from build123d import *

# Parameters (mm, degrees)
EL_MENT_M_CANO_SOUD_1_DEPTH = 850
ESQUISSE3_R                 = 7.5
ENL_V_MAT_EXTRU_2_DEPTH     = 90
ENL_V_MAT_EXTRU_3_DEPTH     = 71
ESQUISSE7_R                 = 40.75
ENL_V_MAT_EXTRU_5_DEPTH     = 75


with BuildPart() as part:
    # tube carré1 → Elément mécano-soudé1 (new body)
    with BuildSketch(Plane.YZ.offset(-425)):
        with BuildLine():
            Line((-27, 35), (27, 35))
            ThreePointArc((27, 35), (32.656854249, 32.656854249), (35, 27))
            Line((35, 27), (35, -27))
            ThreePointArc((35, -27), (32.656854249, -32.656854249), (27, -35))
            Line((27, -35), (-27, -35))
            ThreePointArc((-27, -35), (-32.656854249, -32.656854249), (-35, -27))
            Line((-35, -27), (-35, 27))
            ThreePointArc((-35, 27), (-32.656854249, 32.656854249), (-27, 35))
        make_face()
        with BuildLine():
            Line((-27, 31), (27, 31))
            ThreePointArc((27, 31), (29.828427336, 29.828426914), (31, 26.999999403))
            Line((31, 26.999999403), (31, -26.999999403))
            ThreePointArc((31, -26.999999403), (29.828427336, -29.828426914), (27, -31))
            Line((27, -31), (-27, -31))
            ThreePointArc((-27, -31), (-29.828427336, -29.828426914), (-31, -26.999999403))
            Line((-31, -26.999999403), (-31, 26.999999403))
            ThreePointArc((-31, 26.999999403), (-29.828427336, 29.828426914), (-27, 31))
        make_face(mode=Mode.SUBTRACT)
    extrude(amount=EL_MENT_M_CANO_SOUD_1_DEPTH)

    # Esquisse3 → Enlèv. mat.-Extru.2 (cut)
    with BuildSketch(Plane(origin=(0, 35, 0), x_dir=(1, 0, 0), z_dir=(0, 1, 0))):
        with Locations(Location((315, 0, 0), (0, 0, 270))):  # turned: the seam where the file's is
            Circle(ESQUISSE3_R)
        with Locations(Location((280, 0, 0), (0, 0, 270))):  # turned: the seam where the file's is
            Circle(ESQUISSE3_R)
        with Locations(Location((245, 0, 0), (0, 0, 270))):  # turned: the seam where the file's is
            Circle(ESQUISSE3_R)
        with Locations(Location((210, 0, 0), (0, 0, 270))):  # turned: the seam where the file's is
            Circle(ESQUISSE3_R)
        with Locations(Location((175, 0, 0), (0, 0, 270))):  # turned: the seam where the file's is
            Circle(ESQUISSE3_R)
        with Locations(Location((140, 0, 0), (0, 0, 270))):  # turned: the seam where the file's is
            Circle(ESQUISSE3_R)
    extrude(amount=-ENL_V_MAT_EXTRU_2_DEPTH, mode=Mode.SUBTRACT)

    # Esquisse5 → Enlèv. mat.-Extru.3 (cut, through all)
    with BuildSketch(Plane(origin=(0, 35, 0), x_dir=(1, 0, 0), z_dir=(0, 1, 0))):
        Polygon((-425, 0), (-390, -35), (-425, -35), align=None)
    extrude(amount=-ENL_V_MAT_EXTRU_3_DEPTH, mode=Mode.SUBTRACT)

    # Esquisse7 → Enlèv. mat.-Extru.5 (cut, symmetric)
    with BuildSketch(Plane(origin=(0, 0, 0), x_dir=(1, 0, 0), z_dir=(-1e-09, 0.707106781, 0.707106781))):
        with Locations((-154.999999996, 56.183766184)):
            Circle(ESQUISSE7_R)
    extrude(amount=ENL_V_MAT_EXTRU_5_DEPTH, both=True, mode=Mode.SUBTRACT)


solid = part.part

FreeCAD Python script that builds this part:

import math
import FreeCAD as App
import Part
import Sketcher
from FreeCAD import Vector
Q = App.Units.Quantity

doc = App.newDocument("Part")
params = doc.addObject("Spreadsheet::Sheet", "Params")
for row, (alias, value) in enumerate([
    ("sketch1_radius", "8 mm"),
    ("sketch1_radius2", "4 mm"),
    ("sketch1_width", "54 mm"),
    ("pad1_length", "850 mm"),
    ("sketch2_diameter", "15 mm"),
    ("pocket1_length", "90 mm"),
    ("sketch3_width", "35 mm"),
    ("sketch4_diameter", "81.5 mm"),
    ("pocket3_length", "150 mm"),
], start=1):
    params.set(f"A{row}", alias)
    params.set(f"B{row}", "=" + value)
    params.setAlias(f"B{row}", alias)

body = doc.addObject("PartDesign::Body", "Body")

sketch1 = body.newObject("Sketcher::SketchObject", "Sketch")
sketch1.AttachmentSupport = (doc.getObject("YZ_Plane"), [""])
sketch1.MapMode = "FlatFace"
sketch1.AttachmentOffset = App.Placement(Vector(0, 0, -425), App.Rotation())
sketch1.addGeometry(Part.LineSegment(Vector(27, 35, 0), Vector(-27, 35, 0)), False)
sketch1.addGeometry(Part.ArcOfCircle(Part.Circle(Vector(-27, 27, 0), Vector(0, 0, 1), 8), math.radians(90), math.radians(180)), False)
sketch1.addGeometry(Part.LineSegment(Vector(-35, 27, 0), Vector(-35, -27, 0)), False)
sketch1.addGeometry(Part.ArcOfCircle(Part.Circle(Vector(-27, -27, 0), Vector(0, 0, 1), 8), math.radians(-180), math.radians(-90)), False)
sketch1.addGeometry(Part.LineSegment(Vector(-27, -35, 0), Vector(27, -35, 0)), False)
sketch1.addGeometry(Part.ArcOfCircle(Part.Circle(Vector(27, -27, 0), Vector(0, 0, 1), 8), math.radians(-90), math.radians(0)), False)
sketch1.addGeometry(Part.LineSegment(Vector(35, -27, 0), Vector(35, 27, 0)), False)
sketch1.addGeometry(Part.ArcOfCircle(Part.Circle(Vector(27, 27, 0), Vector(0, 0, 1), 8), math.radians(0), math.radians(90)), False)
sketch1.addGeometry(Part.LineSegment(Vector(-27, 31, 0), Vector(27, 31, 0)), False)
sketch1.addGeometry(Part.ArcOfCircle(Part.Circle(Vector(27, 27, 0), Vector(0, 0, 1), 4), math.radians(-0.000009), math.radians(90)), False)
sketch1.addGeometry(Part.LineSegment(Vector(31, 26.999999, 0), Vector(31, -26.999999, 0)), False)
sketch1.addGeometry(Part.ArcOfCircle(Part.Circle(Vector(27, -27, 0), Vector(0, 0, 1), 4), math.radians(-90), math.radians(0.000009)), False)
sketch1.addGeometry(Part.LineSegment(Vector(27, -31, 0), Vector(-27, -31, 0)), False)
sketch1.addGeometry(Part.ArcOfCircle(Part.Circle(Vector(-27, -27, 0), Vector(0, 0, 1), 4), math.radians(179.999991), math.radians(270)), False)
sketch1.addGeometry(Part.LineSegment(Vector(-31, -26.999999, 0), Vector(-31, 26.999999, 0)), False)
sketch1.addGeometry(Part.ArcOfCircle(Part.Circle(Vector(-27, 27, 0), Vector(0, 0, 1), 4), math.radians(90), math.radians(180.000009)), False)
sketch1.addConstraint(Sketcher.Constraint("Tangent", 0, 2, 1, 1))
sketch1.addConstraint(Sketcher.Constraint("Tangent", 1, 2, 2, 1))
sketch1.addConstraint(Sketcher.Constraint("Tangent", 2, 2, 3, 1))
sketch1.addConstraint(Sketcher.Constraint("Tangent", 3, 2, 4, 1))
sketch1.addConstraint(Sketcher.Constraint("Tangent", 4, 2, 5, 1))
sketch1.addConstraint(Sketcher.Constraint("Tangent", 5, 2, 6, 1))
sketch1.addConstraint(Sketcher.Constraint("Tangent", 6, 2, 7, 1))
sketch1.addConstraint(Sketcher.Constraint("Tangent", 7, 2, 0, 1))
sketch1.addConstraint(Sketcher.Constraint("Tangent", 8, 2, 9, 2))
sketch1.addConstraint(Sketcher.Constraint("Tangent", 9, 1, 10, 1))
sketch1.addConstraint(Sketcher.Constraint("Tangent", 10, 2, 11, 2))
sketch1.addConstraint(Sketcher.Constraint("Tangent", 11, 1, 12, 1))
sketch1.addConstraint(Sketcher.Constraint("Tangent", 12, 2, 13, 2))
sketch1.addConstraint(Sketcher.Constraint("Tangent", 13, 1, 14, 1))
sketch1.addConstraint(Sketcher.Constraint("Tangent", 14, 2, 15, 2))
sketch1.addConstraint(Sketcher.Constraint("Tangent", 15, 1, 8, 1))
sketch1.addConstraint(Sketcher.Constraint("Horizontal", 0))
sketch1.addConstraint(Sketcher.Constraint("Vertical", 2))
sketch1.addConstraint(Sketcher.Constraint("Horizontal", 4))
sketch1.addConstraint(Sketcher.Constraint("Vertical", 6))
sketch1.addConstraint(Sketcher.Constraint("Horizontal", 8))
sketch1.addConstraint(Sketcher.Constraint("Vertical", 10))
sketch1.addConstraint(Sketcher.Constraint("Horizontal", 12))
sketch1.addConstraint(Sketcher.Constraint("Vertical", 14))
sketch1.addConstraint(Sketcher.Constraint("Coincident", 9, 3, 7, 3))
sketch1.addConstraint(Sketcher.Constraint("Coincident", 11, 3, 5, 3))
sketch1.addConstraint(Sketcher.Constraint("Coincident", 13, 3, 3, 3))
sketch1.addConstraint(Sketcher.Constraint("Equal", 1, 3))
sketch1.addConstraint(Sketcher.Constraint("Equal", 3, 5))
sketch1.addConstraint(Sketcher.Constraint("Equal", 5, 7))
sketch1.addConstraint(Sketcher.Constraint("Equal", 13, 15))
sketch1.addConstraint(Sketcher.Constraint("Symmetric", 1, 3, 5, 3, -1, 1))
sketch1.addConstraint(Sketcher.Constraint("Equal", 12, 2))
sketch1.addConstraint(Sketcher.Constraint("Radius", 1, Q("8 mm")))
sketch1.addConstraint(Sketcher.Constraint("Radius", 9, Q("4 mm")))
sketch1.addConstraint(Sketcher.Constraint("DistanceX", 0, 2, 0, 1, Q("54 mm")))
sketch1.setExpression("Constraints[33]", "Params.sketch1_radius")
sketch1.setExpression("Constraints[34]", "Params.sketch1_radius2")
sketch1.setExpression("Constraints[35]", "Params.sketch1_width")
pad1 = body.newObject("PartDesign::Pad", "Pad")
pad1.Profile = sketch1
pad1.setExpression("Length", "Params.pad1_length")

sketch2 = body.newObject("Sketcher::SketchObject", "Sketch001")
sketch2.AttachmentSupport = (doc.getObject("XZ_Plane"), [""])
sketch2.MapMode = "FlatFace"
sketch2.AttachmentOffset = App.Placement(Vector(0, 0, -35), App.Rotation())
sketch2.addGeometry(Part.Circle(Vector(315, 0, 0), Vector(0, 0, 1), 7.5), False)
sketch2.addGeometry(Part.Circle(Vector(280, 0, 0), Vector(0, 0, 1), 7.5), False)
sketch2.addGeometry(Part.Circle(Vector(245, 0, 0), Vector(0, 0, 1), 7.5), False)
sketch2.addGeometry(Part.Circle(Vector(210, 0, 0), Vector(0, 0, 1), 7.5), False)
sketch2.addGeometry(Part.Circle(Vector(175, 0, 0), Vector(0, 0, 1), 7.5), False)
sketch2.addGeometry(Part.Circle(Vector(140, 0, 0), Vector(0, 0, 1), 7.5), False)
sketch2.addConstraint(Sketcher.Constraint("Equal", 0, 1))
sketch2.addConstraint(Sketcher.Constraint("Equal", 1, 2))
sketch2.addConstraint(Sketcher.Constraint("Equal", 2, 3))
sketch2.addConstraint(Sketcher.Constraint("Equal", 3, 4))
sketch2.addConstraint(Sketcher.Constraint("Equal", 4, 5))
sketch2.addConstraint(Sketcher.Constraint("PointOnObject", 0, 3, -1))
sketch2.addConstraint(Sketcher.Constraint("PointOnObject", 1, 3, -1))
sketch2.addConstraint(Sketcher.Constraint("PointOnObject", 2, 3, -1))
sketch2.addConstraint(Sketcher.Constraint("PointOnObject", 3, 3, -1))
sketch2.addConstraint(Sketcher.Constraint("PointOnObject", 4, 3, -1))
sketch2.addConstraint(Sketcher.Constraint("PointOnObject", 5, 3, -1))
sketch2.addConstraint(Sketcher.Constraint("Diameter", 0, Q("15 mm")))
sketch2.addConstraint(Sketcher.Constraint("DistanceX", -1, 1, 0, 3, Q("315 mm")))
sketch2.addConstraint(Sketcher.Constraint("DistanceX", -1, 1, 1, 3, Q("280 mm")))
sketch2.addConstraint(Sketcher.Constraint("DistanceX", -1, 1, 2, 3, Q("245 mm")))
sketch2.addConstraint(Sketcher.Constraint("DistanceX", -1, 1, 3, 3, Q("210 mm")))
sketch2.addConstraint(Sketcher.Constraint("DistanceX", -1, 1, 4, 3, Q("175 mm")))
sketch2.addConstraint(Sketcher.Constraint("DistanceX", -1, 1, 5, 3, Q("140 mm")))
sketch2.setExpression("Constraints[11]", "Params.sketch2_diameter")
pocket1 = body.newObject("PartDesign::Pocket", "Pocket")
pocket1.Profile = sketch2
pocket1.setExpression("Length", "Params.pocket1_length")
pocket1.Reversed = True

sketch3 = body.newObject("Sketcher::SketchObject", "Sketch002")
sketch3.AttachmentSupport = (doc.getObject("XZ_Plane"), [""])
sketch3.MapMode = "FlatFace"
sketch3.AttachmentOffset = App.Placement(Vector(0, 0, -35), App.Rotation())
sketch3.addGeometry(Part.LineSegment(Vector(-390, 35, 0), Vector(-425, 0, 0)), False)
sketch3.addGeometry(Part.LineSegment(Vector(-425, 0, 0), Vector(-425, 35, 0)), False)
sketch3.addGeometry(Part.LineSegment(Vector(-425, 35, 0), Vector(-390, 35, 0)), False)
sketch3.addConstraint(Sketcher.Constraint("Coincident", 0, 2, 1, 1))
sketch3.addConstraint(Sketcher.Constraint("Coincident", 1, 2, 2, 1))
sketch3.addConstraint(Sketcher.Constraint("Coincident", 2, 2, 0, 1))
sketch3.addConstraint(Sketcher.Constraint("Vertical", 1))
sketch3.addConstraint(Sketcher.Constraint("Horizontal", 2))
sketch3.addConstraint(Sketcher.Constraint("PointOnObject", 0, 2, -1))
sketch3.addConstraint(Sketcher.Constraint("Equal", 2, 1))
sketch3.addConstraint(Sketcher.Constraint("DistanceX", 2, 1, 2, 2, Q("35 mm")))
sketch3.addConstraint(Sketcher.Constraint("DistanceX", 0, 2, -1, 1, Q("425 mm")))
sketch3.setExpression("Constraints[7]", "Params.sketch3_width")
pocket2 = body.newObject("PartDesign::Pocket", "Pocket001")
pocket2.Profile = sketch3
pocket2.Type = "ThroughAll"
pocket2.Reversed = True

sketch4 = body.newObject("Sketcher::SketchObject", "Sketch003")
sketch4.Placement = App.Placement(Vector(0, 0, 0), App.Rotation(Vector(1, 0.000000001, 0.000000001), Vector(0, 0.707106781, -0.707106781), Vector(-0.000000001, 0.707106781, 0.707106781), "ZXY"))
sketch4.addGeometry(Part.Circle(Vector(-155, 56.183766, 0), Vector(0, 0, 1), 40.75), False)
sketch4.addConstraint(Sketcher.Constraint("Diameter", 0, Q("81.5 mm")))
sketch4.addConstraint(Sketcher.Constraint("DistanceX", 0, 3, -1, 1, Q("155 mm")))
sketch4.addConstraint(Sketcher.Constraint("DistanceY", -1, 1, 0, 3, Q("56.183766 mm")))
sketch4.setExpression("Constraints[0]", "Params.sketch4_diameter")
pocket3 = body.newObject("PartDesign::Pocket", "Pocket002")
pocket3.Profile = sketch4
pocket3.setExpression("Length", "Params.pocket3_length")
pocket3.Midplane = True

doc.recompute()
